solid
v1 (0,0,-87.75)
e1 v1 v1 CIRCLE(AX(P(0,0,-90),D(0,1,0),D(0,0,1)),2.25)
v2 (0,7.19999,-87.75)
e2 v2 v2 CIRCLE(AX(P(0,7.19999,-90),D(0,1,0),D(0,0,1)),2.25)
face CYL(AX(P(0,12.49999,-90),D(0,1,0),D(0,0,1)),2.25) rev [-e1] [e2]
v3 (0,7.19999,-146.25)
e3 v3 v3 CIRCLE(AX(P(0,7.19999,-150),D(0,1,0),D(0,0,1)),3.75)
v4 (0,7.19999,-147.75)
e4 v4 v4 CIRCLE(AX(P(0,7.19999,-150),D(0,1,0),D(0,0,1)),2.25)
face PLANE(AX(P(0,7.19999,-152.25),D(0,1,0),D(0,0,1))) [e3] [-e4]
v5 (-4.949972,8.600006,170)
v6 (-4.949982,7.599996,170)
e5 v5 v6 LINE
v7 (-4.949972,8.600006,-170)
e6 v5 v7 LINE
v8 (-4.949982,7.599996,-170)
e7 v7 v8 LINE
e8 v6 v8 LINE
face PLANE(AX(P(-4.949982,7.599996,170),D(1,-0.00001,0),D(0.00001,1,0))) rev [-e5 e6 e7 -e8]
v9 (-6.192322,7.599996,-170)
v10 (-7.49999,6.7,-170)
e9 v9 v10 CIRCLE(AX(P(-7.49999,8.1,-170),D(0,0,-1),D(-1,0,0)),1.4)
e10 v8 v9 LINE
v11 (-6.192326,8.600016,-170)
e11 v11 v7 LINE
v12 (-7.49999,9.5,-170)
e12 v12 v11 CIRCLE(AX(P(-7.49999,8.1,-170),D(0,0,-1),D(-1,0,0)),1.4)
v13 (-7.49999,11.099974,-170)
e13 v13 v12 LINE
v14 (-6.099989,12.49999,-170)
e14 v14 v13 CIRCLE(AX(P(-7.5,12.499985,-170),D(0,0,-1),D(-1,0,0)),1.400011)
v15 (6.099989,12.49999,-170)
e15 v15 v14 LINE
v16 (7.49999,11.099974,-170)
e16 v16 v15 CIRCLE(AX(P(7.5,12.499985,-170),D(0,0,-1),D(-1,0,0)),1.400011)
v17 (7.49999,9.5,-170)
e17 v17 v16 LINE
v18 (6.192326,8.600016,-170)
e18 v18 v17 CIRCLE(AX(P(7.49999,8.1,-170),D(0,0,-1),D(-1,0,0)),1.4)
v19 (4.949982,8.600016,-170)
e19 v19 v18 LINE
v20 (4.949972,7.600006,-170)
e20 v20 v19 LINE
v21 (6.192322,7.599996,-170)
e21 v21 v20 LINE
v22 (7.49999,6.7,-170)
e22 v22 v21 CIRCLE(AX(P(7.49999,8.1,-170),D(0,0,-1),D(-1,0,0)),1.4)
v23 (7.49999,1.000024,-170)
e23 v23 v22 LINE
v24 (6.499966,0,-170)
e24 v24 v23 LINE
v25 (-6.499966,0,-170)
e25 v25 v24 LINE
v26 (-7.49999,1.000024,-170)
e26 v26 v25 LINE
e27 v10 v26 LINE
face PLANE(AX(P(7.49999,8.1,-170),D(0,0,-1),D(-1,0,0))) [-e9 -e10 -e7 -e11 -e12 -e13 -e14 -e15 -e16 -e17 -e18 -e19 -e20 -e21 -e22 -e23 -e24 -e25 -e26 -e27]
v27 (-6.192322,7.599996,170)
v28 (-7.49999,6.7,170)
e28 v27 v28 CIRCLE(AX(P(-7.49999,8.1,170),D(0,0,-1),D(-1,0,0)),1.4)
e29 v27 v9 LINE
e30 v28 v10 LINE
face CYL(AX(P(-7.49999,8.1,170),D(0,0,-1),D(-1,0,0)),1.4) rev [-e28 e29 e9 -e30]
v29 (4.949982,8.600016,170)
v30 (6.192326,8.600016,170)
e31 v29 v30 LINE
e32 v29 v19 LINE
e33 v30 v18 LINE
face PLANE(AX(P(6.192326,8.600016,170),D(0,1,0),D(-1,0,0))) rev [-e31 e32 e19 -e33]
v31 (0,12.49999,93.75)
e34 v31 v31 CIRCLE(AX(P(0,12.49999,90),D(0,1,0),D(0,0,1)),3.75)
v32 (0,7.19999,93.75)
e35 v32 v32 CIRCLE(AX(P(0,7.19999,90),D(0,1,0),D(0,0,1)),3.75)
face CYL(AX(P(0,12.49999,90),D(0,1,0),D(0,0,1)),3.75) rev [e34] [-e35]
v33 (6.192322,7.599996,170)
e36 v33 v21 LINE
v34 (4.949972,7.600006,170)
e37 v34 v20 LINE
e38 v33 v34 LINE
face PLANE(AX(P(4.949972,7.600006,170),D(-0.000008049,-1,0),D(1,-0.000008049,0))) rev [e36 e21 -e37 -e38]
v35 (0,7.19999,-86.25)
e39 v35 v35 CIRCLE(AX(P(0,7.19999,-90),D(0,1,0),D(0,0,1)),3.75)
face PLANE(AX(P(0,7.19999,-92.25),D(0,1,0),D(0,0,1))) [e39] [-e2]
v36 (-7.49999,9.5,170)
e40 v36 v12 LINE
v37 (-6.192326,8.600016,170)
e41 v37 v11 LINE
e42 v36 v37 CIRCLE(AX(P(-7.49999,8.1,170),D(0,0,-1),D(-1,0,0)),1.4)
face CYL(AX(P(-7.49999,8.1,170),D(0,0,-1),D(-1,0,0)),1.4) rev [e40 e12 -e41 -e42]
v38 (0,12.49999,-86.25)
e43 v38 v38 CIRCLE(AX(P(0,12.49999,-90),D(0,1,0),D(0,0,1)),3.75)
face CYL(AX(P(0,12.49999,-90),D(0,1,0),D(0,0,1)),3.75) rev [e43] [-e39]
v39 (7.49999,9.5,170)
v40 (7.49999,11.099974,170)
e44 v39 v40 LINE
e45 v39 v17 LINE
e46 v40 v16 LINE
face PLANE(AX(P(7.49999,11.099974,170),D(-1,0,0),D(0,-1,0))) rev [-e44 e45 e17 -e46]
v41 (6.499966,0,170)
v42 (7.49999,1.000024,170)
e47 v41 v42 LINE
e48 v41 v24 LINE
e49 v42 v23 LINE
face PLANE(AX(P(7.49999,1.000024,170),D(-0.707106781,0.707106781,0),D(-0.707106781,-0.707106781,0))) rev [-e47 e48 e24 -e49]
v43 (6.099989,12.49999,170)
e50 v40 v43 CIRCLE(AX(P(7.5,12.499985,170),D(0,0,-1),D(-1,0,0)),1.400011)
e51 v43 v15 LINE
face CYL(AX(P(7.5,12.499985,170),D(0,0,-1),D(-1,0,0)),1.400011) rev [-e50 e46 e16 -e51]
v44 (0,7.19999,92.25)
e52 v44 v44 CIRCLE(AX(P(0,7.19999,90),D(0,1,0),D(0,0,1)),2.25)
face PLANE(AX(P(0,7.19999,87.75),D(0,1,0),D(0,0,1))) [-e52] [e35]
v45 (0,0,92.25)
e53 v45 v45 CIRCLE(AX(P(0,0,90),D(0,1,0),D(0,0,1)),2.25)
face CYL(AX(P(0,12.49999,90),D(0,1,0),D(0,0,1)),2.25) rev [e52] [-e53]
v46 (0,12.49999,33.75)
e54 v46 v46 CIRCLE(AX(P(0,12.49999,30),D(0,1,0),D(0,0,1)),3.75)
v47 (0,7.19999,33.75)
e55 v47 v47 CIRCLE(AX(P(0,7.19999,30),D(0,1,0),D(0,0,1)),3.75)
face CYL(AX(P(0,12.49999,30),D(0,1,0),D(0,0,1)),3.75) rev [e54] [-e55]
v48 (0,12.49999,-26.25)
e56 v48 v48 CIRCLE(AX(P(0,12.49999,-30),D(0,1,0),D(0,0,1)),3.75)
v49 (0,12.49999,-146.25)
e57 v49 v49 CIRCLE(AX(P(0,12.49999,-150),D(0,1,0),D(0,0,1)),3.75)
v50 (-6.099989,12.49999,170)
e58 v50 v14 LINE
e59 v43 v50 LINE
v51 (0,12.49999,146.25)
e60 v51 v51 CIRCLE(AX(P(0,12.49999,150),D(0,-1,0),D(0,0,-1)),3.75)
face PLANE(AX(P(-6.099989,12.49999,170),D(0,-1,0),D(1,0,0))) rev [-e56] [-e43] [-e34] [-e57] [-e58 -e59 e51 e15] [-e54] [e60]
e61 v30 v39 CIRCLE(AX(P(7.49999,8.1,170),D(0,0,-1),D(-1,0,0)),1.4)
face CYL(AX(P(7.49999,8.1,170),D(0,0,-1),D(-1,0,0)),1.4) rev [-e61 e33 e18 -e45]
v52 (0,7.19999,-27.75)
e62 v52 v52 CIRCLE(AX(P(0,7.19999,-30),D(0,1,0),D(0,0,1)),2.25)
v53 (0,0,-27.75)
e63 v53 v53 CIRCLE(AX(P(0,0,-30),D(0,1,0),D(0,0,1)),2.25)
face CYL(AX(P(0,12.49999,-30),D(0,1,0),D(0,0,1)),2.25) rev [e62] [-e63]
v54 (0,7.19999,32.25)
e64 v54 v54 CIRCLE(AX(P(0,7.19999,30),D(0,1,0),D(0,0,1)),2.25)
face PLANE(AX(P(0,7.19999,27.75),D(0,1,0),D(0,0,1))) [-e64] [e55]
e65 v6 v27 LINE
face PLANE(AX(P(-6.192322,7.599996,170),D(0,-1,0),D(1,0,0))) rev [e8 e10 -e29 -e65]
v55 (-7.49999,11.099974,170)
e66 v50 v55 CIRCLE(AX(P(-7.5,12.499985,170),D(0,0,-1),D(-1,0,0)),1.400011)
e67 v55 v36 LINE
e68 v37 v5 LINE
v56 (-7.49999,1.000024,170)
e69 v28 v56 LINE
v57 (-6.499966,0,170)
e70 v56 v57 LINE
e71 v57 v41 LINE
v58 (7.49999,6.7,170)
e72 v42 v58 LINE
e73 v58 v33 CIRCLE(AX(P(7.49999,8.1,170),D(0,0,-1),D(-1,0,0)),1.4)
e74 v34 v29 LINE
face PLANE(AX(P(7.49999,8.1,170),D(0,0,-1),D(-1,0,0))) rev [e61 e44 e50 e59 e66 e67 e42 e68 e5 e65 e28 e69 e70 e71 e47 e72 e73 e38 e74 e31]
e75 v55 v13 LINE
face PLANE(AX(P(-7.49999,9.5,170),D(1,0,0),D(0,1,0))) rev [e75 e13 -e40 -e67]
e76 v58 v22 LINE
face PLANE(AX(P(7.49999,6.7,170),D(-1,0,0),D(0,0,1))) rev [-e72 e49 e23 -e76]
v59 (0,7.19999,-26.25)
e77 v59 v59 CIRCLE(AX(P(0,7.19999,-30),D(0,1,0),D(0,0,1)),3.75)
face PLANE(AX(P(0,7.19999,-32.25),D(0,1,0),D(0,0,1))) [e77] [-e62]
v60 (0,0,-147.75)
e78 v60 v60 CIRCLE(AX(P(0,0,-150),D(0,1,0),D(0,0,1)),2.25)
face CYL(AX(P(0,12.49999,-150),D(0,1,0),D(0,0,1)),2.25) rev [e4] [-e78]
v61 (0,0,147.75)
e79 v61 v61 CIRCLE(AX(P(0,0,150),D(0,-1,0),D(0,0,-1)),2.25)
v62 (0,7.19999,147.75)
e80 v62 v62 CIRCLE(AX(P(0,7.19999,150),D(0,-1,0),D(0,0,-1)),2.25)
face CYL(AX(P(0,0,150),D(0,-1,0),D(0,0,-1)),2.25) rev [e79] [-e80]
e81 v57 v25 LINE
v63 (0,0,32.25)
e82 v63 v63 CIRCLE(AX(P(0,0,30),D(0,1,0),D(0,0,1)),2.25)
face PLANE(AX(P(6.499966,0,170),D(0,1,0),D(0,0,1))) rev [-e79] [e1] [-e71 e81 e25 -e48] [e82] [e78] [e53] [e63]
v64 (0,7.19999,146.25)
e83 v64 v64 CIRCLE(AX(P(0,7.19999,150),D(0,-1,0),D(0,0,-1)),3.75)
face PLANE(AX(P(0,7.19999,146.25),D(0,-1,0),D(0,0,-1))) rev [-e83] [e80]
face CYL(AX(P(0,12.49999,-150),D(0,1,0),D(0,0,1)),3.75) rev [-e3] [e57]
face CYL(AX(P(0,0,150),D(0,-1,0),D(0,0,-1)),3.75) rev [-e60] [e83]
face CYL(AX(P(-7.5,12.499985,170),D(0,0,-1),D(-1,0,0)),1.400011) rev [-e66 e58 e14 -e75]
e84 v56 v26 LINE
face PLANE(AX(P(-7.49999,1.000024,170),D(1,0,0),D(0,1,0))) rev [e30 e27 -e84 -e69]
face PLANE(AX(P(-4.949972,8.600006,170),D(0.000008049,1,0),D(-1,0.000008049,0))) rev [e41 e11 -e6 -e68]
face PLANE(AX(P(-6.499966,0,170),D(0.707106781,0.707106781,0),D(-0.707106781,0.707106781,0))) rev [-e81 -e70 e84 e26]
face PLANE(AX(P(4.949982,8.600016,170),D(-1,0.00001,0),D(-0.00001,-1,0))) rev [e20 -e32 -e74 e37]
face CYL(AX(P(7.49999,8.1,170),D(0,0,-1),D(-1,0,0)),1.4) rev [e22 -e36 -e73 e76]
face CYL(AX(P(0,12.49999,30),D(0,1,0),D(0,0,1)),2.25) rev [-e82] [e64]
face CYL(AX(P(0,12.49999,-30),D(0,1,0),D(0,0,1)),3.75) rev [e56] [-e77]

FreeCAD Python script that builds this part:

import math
import FreeCAD as App
import Part
import Sketcher

V = App.Vector
Q = App.Units.Quantity


def add_polygon(sketch, points):
    """Adds a closed chain of lines whose ends are joined by coincident constraints."""
    first, n = sketch.GeometryCount, len(points)
    for a, b in zip(points, points[1:] + points[:1]):
        sketch.addGeometry(Part.LineSegment(App.Vector(*a, 0), App.Vector(*b, 0)), False)
    for i in range(n):
        sketch.addConstraint(Sketcher.Constraint("Coincident", first + i, 2, first + (i + 1) % n, 1))

doc = App.newDocument("Part")
body = doc.addObject("PartDesign::Body", "Body")

sketch1 = doc.addObject("Sketcher::SketchObject", "Sketch")
body.addObject(sketch1)
sketch1.AttachmentSupport = (doc.XY_Plane, [""])
sketch1.MapMode = "FlatFace"
sketch1.addGeometry([
    Part.LineSegment(V(6.2, 7.6, 0), V(4.9, 7.6, 0)),
    Part.LineSegment(V(4.9, 7.6, 0), V(4.9, 8.6, 0)),
    Part.LineSegment(V(4.9, 8.6, 0), V(6.2, 8.6, 0)),
    Part.ArcOfCircle(Part.Circle(V(7.5, 8.1, 0), V(0, 0, 1), 1.4), math.radians(90), math.radians(159)),
    Part.LineSegment(V(7.5, 9.5, 0), V(7.5, 11.1, 0)),
    Part.ArcOfCircle(Part.Circle(V(7.5, 12.5, 0), V(0, 0, 1), 1.4), math.radians(180), math.radians(270)),
    Part.LineSegment(V(6.1, 12.5, 0), V(-6.1, 12.5, 0)),
    Part.ArcOfCircle(Part.Circle(V(-7.5, 12.5, 0), V(0, 0, 1), 1.4), math.radians(-90), math.radians(0)),
    Part.LineSegment(V(-7.5, 11.1, 0), V(-7.5, 9.5, 0)),
    Part.ArcOfCircle(Part.Circle(V(-7.5, 8.1, 0), V(0, 0, 1), 1.4), math.radians(21), math.radians(90)),
    Part.LineSegment(V(-6.2, 8.6, 0), V(-4.9, 8.6, 0)),
    Part.LineSegment(V(-4.9, 8.6, 0), V(-4.9, 7.6, 0)),
    Part.LineSegment(V(-4.9, 7.6, 0), V(-6.2, 7.6, 0)),
    Part.ArcOfCircle(Part.Circle(V(-7.5, 8.1, 0), V(0, 0, 1), 1.4), math.radians(-90), math.radians(-21)),
    Part.LineSegment(V(-7.5, 6.7, 0), V(-7.5, 1, 0)),
    Part.LineSegment(V(-7.5, 1, 0), V(-6.5, 0, 0)),
    Part.LineSegment(V(-6.5, 0, 0), V(6.5, 0, 0)),
    Part.LineSegment(V(6.5, 0, 0), V(7.5, 1, 0)),
    Part.LineSegment(V(7.5, 1, 0), V(7.5, 6.7, 0)),
    Part.ArcOfCircle(Part.Circle(V(7.5, 8.1, 0), V(0, 0, 1), 1.4), math.radians(-159), math.radians(-90)),
], False)
sketch1.addConstraint([
    Sketcher.Constraint("Coincident", 0, 2, 1, 1),
    Sketcher.Constraint("Coincident", 1, 2, 2, 1),
    Sketcher.Constraint("Coincident", 2, 2, 3, 2),
    Sketcher.Constraint("Coincident", 3, 1, 4, 1),
    Sketcher.Constraint("Coincident", 4, 2, 5, 2),
    Sketcher.Constraint("Coincident", 5, 1, 6, 1),
    Sketcher.Constraint("Coincident", 6, 2, 7, 2),
    Sketcher.Constraint("Coincident", 7, 1, 8, 1),
    Sketcher.Constraint("Coincident", 8, 2, 9, 2),
    Sketcher.Constraint("Coincident", 9, 1, 10, 1),
    Sketcher.Constraint("Coincident", 10, 2, 11, 1),
    Sketcher.Constraint("Coincident", 11, 2, 12, 1),
    Sketcher.Constraint("Coincident", 12, 2, 13, 2),
    Sketcher.Constraint("Coincident", 13, 1, 14, 1),
    Sketcher.Constraint("Coincident", 14, 2, 15, 1),
    Sketcher.Constraint("Coincident", 15, 2, 16, 1),
    Sketcher.Constraint("Coincident", 16, 2, 17, 1),
    Sketcher.Constraint("Coincident", 17, 2, 18, 1),
    Sketcher.Constraint("Coincident", 18, 2, 19, 2),
    Sketcher.Constraint("Coincident", 19, 1, 0, 1),
    Sketcher.Constraint("Horizontal", 2),
    Sketcher.Constraint("Vertical", 4),
    Sketcher.Constraint("Horizontal", 6),
    Sketcher.Constraint("Vertical", 8),
    Sketcher.Constraint("Horizontal", 12),
    Sketcher.Constraint("Vertical", 14),
    Sketcher.Constraint("Horizontal", 16),
    Sketcher.Constraint("Vertical", 18),
    Sketcher.Constraint("Coincident", 13, 3, 9, 3),
    Sketcher.Constraint("Coincident", 19, 3, 3, 3),
    Sketcher.Constraint("Equal", 5, 7),
    Sketcher.Constraint("Equal", 3, 9),
    Sketcher.Constraint("Equal", 9, 13),
    Sketcher.Constraint("Equal", 13, 19),
    Sketcher.Constraint("Symmetric", 15, 2, 16, 2, -1, 1),
    Sketcher.Constraint("Symmetric", 5, 3, 7, 3, -2),
    Sketcher.Constraint("Symmetric", 3, 3, 9, 3, -2),
    Sketcher.Constraint("Symmetric", 14, 2, 17, 2, -2),
    Sketcher.Constraint("Perpendicular", 0, 1),
    Sketcher.Constraint("Perpendicular", 1, 10),
    Sketcher.Constraint("Perpendicular", 10, 11),
    Sketcher.Constraint("Perpendicular", 15, 17),
    Sketcher.Constraint("Horizontal", 2, 2, 9, 1),
    Sketcher.Constraint("Horizontal", 12, 2, 19, 1),
    Sketcher.Constraint("Vertical", 19, 3, 3, 1),
    Sketcher.Constraint("Vertical", 13, 3, 7, 1),
    Sketcher.Constraint("Vertical", 8, 2, 13, 1),
    Sketcher.Constraint("Radius", 3, Q("1.4 mm")),
    Sketcher.Constraint("DistanceX", 7, 3, 5, 3, Q("15 mm")),
    Sketcher.Constraint("DistanceY", -1, 1, 3, 3, Q("8.1 mm")),
    Sketcher.Constraint("DistanceX", 5, 1, 4, 2, Q("1.400001 mm")),
    Sketcher.Constraint("Radius", 5, Q("1.400011 mm")),
    Sketcher.Constraint("DistanceX", 12, 2, 12, 1, Q("1.24234 mm")),
    Sketcher.Constraint("DistanceX", 16, 1, 16, 2, Q("12.999932 mm")),
    Sketcher.Constraint("Distance", 0, Q("1.24235 mm")),
    Sketcher.Constraint("Distance", 1, Q("1.00001 mm")),
    Sketcher.Constraint("DistanceX", 2, 1, 2, 2, Q("1.242344 mm")),
    Sketcher.Constraint("DistanceY", 4, 1, 4, 2, Q("1.599974 mm")),
    Sketcher.Constraint("DistanceX", -1, 1, 0, 2, Q("4.949972 mm")),
    Sketcher.Constraint("DistanceY", -1, 1, 5, 1, Q("12.49999 mm")),
])
pad1 = doc.addObject("PartDesign::Pad", "Pad")
body.addObject(pad1)
pad1.Profile = sketch1
pad1.Length = 340
pad1.Midplane = True

sketch2 = doc.addObject("Sketcher::SketchObject", "Sketch001")
body.addObject(sketch2)
sketch2.AttachmentSupport = (doc.YZ_Plane, [""])
sketch2.MapMode = "FlatFace"
add_polygon(sketch2, [(12.5, 146.2), (12.5, 150), (0, 150), (0, 147.8), (7.2, 147.8), (7.2, 146.2)])
sketch2.addGeometry(Part.LineSegment(V(0, 150, 0), V(12.5, 150, 0)), True)
sketch2.addConstraint([
    Sketcher.Constraint("Vertical", 0),
    Sketcher.Constraint("Horizontal", 1),
    Sketcher.Constraint("Vertical", 2),
    Sketcher.Constraint("Horizontal", 3),
    Sketcher.Constraint("Vertical", 4),
    Sketcher.Constraint("Horizontal", 5),
    Sketcher.Constraint("Horizontal", 6),
    Sketcher.Constraint("Coincident", 6, 1, 1, 2),
    Sketcher.Constraint("PointOnObject", 1, 2, -2),
    Sketcher.Constraint("Vertical", 5, 2, 6, 2),
    Sketcher.Constraint("DistanceX", 5, 1, 5, 2, Q("5.3 mm")),
    Sketcher.Constraint("DistanceY", 4, 2, 4, 1, Q("1.5 mm")),
    Sketcher.Constraint("DistanceY", -1, 1, 0, 2, Q("150 mm")),
    Sketcher.Constraint("DistanceY", 0, 1, 0, 2, Q("3.75 mm")),
    Sketcher.Constraint("DistanceX", 1, 2, 1, 1, Q("12.49999 mm")),
])
groove = doc.addObject("PartDesign::Groove", "Groove")
body.addObject(groove)
groove.Profile = sketch2
groove.ReferenceAxis = (sketch2, ["Axis0"])
groove.Angle = 360

sketch3 = doc.addObject("Sketcher::SketchObject", "Sketch002")
body.addObject(sketch3)
sketch3.AttachmentSupport = (doc.YZ_Plane, [""])
sketch3.MapMode = "FlatFace"
add_polygon(sketch3, [(0, -150), (0, -152.2), (7.2, -152.2), (7.2, -153.8), (12.5, -153.8), (12.5, -150)])
sketch3.addGeometry(Part.LineSegment(V(12.5, -150, 0), V(0, -150, 0)), True)
sketch3.addConstraint([
    Sketcher.Constraint("Vertical", 0),
    Sketcher.Constraint("Horizontal", 1),
    Sketcher.Constraint("Vertical", 2),
    Sketcher.Constraint("Horizontal", 3),
    Sketcher.Constraint("Vertical", 4),
    Sketcher.Constraint("Horizontal", 5),
    Sketcher.Constraint("Horizontal", 6),
    Sketcher.Constraint("Coincident", 6, 1, 4, 2),
    Sketcher.Constraint("PointOnObject", 0, 2, -2),
    Sketcher.Constraint("PointOnObject", 6, 2, -2),
    Sketcher.Constraint("DistanceX", 3, 1, 3, 2, Q("5.3 mm")),
    Sketcher.Constraint("DistanceY", 2, 2, 2, 1, Q("1.5 mm")),
    Sketcher.Constraint("DistanceY", 4, 2, -1, 1, Q("150 mm")),
    Sketcher.Constraint("DistanceY", 0, 2, 0, 1, Q("2.25 mm")),
    Sketcher.Constraint("DistanceX", 1, 1, 1, 2, Q("7.19999 mm")),
])
groove2 = doc.addObject("PartDesign::Groove", "Groove001")
body.addObject(groove2)
groove2.Profile = sketch3
groove2.ReferenceAxis = (sketch3, ["Axis0"])
groove2.Angle = 360
doc.recompute()

linearpattern = doc.addObject("PartDesign::LinearPattern", "LinearPattern")
body.addObject(linearpattern)
linearpattern.Originals = [groove2]
linearpattern.Direction = (doc.Z_Axis, [""])
linearpattern.Mode = "offset"
linearpattern.Offset = 60
linearpattern.Occurrences = 5
body.Tip = linearpattern

doc.recompute()
